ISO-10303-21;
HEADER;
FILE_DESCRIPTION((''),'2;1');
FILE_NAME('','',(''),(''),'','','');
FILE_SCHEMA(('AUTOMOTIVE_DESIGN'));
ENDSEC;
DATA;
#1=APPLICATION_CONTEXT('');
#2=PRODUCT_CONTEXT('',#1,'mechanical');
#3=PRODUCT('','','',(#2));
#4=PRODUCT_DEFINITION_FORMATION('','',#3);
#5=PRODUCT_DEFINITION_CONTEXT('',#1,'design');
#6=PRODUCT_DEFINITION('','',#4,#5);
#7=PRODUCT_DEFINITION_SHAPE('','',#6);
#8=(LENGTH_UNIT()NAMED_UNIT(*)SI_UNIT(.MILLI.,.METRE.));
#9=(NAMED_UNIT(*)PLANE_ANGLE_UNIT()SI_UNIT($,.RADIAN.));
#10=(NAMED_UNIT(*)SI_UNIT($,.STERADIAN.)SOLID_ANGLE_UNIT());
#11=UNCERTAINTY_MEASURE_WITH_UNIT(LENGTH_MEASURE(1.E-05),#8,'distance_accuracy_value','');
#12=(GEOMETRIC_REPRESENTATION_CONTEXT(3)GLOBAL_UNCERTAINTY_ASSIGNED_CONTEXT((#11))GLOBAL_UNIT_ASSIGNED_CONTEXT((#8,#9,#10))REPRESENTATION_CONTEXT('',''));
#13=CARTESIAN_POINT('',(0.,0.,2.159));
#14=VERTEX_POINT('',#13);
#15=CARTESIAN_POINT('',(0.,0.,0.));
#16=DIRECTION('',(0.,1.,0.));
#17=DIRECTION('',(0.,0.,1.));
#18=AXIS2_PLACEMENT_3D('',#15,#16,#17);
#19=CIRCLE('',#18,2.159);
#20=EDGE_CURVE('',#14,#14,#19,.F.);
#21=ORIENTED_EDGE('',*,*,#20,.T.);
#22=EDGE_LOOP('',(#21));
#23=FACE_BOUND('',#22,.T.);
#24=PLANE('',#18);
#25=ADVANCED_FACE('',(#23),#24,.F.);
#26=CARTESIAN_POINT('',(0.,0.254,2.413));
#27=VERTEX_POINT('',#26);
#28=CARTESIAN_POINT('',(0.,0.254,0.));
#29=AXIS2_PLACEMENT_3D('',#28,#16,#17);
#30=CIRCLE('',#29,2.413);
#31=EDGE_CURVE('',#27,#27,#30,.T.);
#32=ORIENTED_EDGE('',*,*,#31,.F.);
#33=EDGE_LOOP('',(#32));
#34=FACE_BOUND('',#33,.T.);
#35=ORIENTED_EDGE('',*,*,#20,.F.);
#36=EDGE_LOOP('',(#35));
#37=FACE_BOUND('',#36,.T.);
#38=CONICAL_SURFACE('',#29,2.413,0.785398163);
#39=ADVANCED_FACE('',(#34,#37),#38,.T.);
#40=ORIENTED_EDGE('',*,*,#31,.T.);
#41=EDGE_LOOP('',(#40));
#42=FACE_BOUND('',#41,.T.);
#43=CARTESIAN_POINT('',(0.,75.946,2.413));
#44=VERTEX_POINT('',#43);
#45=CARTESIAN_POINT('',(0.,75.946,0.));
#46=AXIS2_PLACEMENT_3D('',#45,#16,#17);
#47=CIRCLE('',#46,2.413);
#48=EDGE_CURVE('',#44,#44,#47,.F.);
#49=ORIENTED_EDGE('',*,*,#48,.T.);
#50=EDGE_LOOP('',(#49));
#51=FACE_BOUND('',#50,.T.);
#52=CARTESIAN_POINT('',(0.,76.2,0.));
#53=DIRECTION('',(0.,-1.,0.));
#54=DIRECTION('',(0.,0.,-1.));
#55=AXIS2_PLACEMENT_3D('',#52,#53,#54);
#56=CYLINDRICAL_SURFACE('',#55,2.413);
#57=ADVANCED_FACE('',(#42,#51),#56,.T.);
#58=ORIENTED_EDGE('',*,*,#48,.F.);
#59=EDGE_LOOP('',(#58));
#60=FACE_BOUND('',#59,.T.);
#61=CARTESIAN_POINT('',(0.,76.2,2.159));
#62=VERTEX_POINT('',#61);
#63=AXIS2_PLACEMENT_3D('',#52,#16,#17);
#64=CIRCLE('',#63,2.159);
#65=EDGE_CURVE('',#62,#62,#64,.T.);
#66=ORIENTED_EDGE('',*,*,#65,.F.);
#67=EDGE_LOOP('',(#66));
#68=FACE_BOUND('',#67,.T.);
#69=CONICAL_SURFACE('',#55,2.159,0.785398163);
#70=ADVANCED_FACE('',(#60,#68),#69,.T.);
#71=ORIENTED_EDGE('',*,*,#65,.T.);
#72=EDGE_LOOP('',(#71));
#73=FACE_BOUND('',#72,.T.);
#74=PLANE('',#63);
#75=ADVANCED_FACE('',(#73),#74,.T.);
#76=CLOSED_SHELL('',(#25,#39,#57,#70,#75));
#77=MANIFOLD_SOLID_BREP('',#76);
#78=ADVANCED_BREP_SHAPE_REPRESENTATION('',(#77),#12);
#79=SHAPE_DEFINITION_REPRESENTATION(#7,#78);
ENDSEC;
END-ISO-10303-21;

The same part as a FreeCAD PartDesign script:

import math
import FreeCAD as App
import Part
import Sketcher
Q = App.Units.Quantity


def edges_at(feature, points):
    """Names of the edges that pass closest to the given points."""
    edges = feature.Shape.Edges
    near = lambda p: min(range(len(edges)), key=lambda i: edges[i].distToShape(Part.Vertex(*p))[0])
    return sorted({f"Edge{near(p) + 1}" for p in points})

doc = App.newDocument("Part")
body = doc.addObject("PartDesign::Body", "Body")

sketch1 = body.newObject("Sketcher::SketchObject", "Sketch")
sketch1.AttachmentSupport = (doc.getObject("XZ_Plane"), [""])
sketch1.MapMode = "FlatFace"
sketch1.addGeometry(Part.ArcOfCircle(Part.Circle(App.Vector(0, 0, 0), App.Vector(0, 0, 1), 2.4), math.radians(-150), math.radians(-30)), False)
sketch1.addGeometry(Part.ArcOfCircle(Part.Circle(App.Vector(0, 0, 0), App.Vector(0, 0, 1), 2.4), math.radians(0), math.radians(210)), False)
sketch1.addGeometry(Part.ArcOfCircle(Part.Circle(App.Vector(0, 0, 0), App.Vector(0, 0, 1), 2.4), math.radians(-30), math.radians(0)), False)
sketch1.addConstraint(Sketcher.Constraint("Tangent", 0, 1, 1, 2))
sketch1.addConstraint(Sketcher.Constraint("Tangent", 1, 1, 2, 2))
sketch1.addConstraint(Sketcher.Constraint("Tangent", 2, 1, 0, 2))
sketch1.addConstraint(Sketcher.Constraint("Coincident", 0, 3, -1, 1))
sketch1.addConstraint(Sketcher.Constraint("PointOnObject", 1, 1, -1))
sketch1.addConstraint(Sketcher.Constraint("Horizontal", 0, 1, 2, 1))
sketch1.addConstraint(Sketcher.Constraint("Radius", 0, Q("0.095 in")))
sketch1.addConstraint(Sketcher.Constraint("DistanceY", 0, 1, -1, 1, 1.203588))
pad1 = body.newObject("PartDesign::Pad", "Pad")
pad1.Profile = sketch1
pad1.Length = Q("3 in")
pad1.Reversed = True
doc.recompute()

chamfer = body.newObject("PartDesign::Chamfer", "Chamfer")
chamfer.Base = (pad1, edges_at(pad1, [(-0.623, 0, 2.331), (-0.623, 76.2, 2.331)]))
chamfer.Size = Q("0.01 in")

doc.recompute()
